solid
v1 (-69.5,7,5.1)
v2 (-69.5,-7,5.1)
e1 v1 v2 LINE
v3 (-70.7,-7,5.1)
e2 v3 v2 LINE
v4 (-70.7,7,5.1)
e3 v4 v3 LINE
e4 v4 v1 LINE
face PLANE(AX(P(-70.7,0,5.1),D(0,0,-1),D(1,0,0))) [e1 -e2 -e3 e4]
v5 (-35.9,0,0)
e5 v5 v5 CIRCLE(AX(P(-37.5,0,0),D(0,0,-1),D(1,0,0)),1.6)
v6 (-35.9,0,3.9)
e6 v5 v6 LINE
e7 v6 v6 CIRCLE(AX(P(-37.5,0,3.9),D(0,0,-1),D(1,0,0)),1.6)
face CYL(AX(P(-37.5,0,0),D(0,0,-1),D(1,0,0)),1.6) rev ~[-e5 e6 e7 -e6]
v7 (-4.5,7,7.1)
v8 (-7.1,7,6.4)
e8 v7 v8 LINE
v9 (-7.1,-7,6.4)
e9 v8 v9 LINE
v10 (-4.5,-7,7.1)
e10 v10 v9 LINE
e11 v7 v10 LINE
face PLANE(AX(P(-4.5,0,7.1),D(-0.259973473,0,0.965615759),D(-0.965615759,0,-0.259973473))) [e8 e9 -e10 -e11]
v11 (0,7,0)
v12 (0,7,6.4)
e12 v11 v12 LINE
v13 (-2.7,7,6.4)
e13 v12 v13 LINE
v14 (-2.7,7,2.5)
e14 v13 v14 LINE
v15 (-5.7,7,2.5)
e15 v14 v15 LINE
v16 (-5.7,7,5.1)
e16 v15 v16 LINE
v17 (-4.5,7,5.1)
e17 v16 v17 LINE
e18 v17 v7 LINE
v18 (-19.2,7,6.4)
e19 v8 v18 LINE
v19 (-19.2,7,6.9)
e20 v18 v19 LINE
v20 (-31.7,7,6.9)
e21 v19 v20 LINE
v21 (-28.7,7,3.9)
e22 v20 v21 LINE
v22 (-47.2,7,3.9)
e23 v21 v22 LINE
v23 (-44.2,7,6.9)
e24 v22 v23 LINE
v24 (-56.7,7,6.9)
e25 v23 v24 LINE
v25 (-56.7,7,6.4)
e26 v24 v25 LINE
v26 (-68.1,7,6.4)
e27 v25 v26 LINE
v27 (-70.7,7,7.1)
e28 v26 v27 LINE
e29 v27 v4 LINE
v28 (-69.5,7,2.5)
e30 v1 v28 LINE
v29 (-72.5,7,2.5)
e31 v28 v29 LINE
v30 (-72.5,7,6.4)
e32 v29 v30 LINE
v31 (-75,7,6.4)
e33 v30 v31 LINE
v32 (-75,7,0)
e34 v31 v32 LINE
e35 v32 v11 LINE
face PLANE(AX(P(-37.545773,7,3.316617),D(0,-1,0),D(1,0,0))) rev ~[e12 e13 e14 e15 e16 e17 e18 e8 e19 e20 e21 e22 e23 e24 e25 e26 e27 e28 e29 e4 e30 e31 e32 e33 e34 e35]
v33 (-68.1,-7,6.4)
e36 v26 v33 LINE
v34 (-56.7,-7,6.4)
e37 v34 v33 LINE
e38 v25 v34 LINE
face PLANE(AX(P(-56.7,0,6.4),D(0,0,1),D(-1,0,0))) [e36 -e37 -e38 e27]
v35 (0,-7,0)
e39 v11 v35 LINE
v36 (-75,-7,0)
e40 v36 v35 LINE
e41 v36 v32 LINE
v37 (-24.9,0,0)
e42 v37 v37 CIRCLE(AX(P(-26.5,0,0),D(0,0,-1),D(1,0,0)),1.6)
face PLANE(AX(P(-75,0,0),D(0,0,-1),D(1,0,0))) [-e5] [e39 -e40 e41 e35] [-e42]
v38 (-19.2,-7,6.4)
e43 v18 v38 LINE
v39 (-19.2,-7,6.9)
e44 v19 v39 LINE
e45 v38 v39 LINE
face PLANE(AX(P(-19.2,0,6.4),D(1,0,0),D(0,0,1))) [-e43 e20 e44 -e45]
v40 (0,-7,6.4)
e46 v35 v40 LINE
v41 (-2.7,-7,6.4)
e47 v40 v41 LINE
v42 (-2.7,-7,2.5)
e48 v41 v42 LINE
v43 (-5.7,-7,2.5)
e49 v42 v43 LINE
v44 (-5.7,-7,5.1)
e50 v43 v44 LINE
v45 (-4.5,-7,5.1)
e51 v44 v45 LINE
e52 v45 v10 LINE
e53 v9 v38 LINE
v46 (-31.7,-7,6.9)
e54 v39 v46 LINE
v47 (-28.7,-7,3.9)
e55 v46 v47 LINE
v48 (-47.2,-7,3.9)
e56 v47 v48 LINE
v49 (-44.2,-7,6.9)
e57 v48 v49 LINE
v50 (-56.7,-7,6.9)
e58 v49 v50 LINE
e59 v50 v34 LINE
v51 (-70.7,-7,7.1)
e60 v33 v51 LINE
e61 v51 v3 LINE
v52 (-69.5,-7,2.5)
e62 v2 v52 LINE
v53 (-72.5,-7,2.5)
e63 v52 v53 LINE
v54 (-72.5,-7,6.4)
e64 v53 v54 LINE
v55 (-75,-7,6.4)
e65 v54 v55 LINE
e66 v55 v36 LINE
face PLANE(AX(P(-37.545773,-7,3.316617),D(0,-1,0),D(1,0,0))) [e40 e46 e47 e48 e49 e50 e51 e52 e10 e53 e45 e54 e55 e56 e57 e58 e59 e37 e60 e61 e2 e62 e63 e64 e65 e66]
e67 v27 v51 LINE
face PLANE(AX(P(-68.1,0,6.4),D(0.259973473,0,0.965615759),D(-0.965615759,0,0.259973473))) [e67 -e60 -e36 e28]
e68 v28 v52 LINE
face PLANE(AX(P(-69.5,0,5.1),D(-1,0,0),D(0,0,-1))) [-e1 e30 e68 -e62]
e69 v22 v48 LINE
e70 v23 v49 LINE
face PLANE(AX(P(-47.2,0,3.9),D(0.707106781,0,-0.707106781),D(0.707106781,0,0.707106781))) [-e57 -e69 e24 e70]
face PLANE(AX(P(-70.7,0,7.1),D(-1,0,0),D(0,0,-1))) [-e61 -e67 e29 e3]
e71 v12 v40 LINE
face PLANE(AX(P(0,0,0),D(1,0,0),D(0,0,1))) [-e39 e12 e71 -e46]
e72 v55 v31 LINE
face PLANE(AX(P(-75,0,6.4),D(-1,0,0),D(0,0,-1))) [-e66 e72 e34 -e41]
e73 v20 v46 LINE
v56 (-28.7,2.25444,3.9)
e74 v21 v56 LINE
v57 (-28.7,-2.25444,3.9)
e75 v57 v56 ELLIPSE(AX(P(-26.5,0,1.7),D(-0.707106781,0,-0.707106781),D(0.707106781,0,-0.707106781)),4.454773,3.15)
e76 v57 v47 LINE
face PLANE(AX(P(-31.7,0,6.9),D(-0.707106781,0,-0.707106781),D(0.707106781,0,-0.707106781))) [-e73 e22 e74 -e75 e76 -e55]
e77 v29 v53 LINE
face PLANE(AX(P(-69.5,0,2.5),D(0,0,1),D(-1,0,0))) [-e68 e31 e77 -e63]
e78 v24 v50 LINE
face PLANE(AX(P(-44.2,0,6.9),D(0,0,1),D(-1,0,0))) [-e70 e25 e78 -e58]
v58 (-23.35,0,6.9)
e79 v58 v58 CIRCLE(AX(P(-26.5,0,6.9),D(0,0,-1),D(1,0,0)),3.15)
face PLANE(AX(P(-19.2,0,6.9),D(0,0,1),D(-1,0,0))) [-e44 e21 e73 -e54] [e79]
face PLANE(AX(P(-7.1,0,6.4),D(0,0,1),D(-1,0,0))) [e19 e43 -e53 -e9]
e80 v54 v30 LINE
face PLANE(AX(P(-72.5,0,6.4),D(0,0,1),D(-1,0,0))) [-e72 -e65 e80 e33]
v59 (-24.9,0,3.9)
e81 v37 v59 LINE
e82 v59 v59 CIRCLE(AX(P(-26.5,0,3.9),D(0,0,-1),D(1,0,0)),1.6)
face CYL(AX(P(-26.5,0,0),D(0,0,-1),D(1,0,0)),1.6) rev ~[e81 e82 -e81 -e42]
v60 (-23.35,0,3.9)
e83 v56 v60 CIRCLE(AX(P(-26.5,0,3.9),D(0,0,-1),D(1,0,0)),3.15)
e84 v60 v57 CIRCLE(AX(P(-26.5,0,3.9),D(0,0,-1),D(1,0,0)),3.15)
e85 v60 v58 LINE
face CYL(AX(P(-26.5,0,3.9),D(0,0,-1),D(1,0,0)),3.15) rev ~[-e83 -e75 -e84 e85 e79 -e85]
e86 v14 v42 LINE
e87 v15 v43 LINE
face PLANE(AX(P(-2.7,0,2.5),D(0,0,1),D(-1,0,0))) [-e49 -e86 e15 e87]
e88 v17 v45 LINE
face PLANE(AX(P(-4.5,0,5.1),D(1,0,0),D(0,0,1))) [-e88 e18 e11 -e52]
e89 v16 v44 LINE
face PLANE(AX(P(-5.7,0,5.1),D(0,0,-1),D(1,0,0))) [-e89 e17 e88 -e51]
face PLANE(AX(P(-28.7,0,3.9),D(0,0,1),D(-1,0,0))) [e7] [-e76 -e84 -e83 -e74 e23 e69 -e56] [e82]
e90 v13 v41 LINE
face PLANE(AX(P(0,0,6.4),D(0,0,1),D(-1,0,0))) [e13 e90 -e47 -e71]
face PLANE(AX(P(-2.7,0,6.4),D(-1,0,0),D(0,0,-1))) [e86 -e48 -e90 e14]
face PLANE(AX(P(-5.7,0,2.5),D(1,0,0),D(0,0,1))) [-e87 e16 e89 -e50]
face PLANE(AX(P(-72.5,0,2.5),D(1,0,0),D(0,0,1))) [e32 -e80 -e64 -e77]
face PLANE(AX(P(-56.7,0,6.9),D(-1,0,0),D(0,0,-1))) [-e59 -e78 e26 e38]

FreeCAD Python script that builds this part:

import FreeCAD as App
import Part
import Sketcher

V = App.Vector


def add_polygon(sketch, points):
    """Adds a closed chain of lines whose ends are joined by coincident constraints."""
    first, n = sketch.GeometryCount, len(points)
    for a, b in zip(points, points[1:] + points[:1]):
        sketch.addGeometry(Part.LineSegment(App.Vector(*a, 0), App.Vector(*b, 0)), False)
    for i in range(n):
        sketch.addConstraint(Sketcher.Constraint("Coincident", first + i, 2, first + (i + 1) % n, 1))

doc = App.newDocument("Part")
body = doc.addObject("PartDesign::Body", "Body")

sketch1 = doc.addObject("Sketcher::SketchObject", "Sketch")
body.addObject(sketch1)
sketch1.AttachmentSupport = (doc.XZ_Plane, [""])
sketch1.MapMode = "FlatFace"
add_polygon(sketch1, [(-75, 0), (0, 0), (0, 6.4), (-2.7, 6.4), (-2.7, 2.5), (-5.7, 2.5), (-5.7, 5.1), (-4.5, 5.1), (-4.5, 7.1), (-7.1, 6.4), (-19.2, 6.4), (-19.2, 6.9), (-31.7, 6.9), (-28.7, 3.9), (-47.2, 3.9), (-44.2, 6.9), (-56.7, 6.9), (-56.7, 6.4), (-68.1, 6.4), (-70.7, 7.1), (-70.7, 5.1), (-69.5, 5.1), (-69.5, 2.5), (-72.5, 2.5), (-72.5, 6.4), (-75, 6.4)])
sketch1.addConstraint(Sketcher.Constraint("Horizontal", 0))
sketch1.addConstraint(Sketcher.Constraint("Vertical", 1))
sketch1.addConstraint(Sketcher.Constraint("Horizontal", 2))
sketch1.addConstraint(Sketcher.Constraint("Vertical", 3))
sketch1.addConstraint(Sketcher.Constraint("Horizontal", 4))
sketch1.addConstraint(Sketcher.Constraint("Vertical", 5))
sketch1.addConstraint(Sketcher.Constraint("Horizontal", 6))
sketch1.addConstraint(Sketcher.Constraint("Vertical", 7))
sketch1.addConstraint(Sketcher.Constraint("Horizontal", 9))
sketch1.addConstraint(Sketcher.Constraint("Vertical", 10))
sketch1.addConstraint(Sketcher.Constraint("Horizontal", 11))
sketch1.addConstraint(Sketcher.Constraint("Horizontal", 13))
sketch1.addConstraint(Sketcher.Constraint("Horizontal", 15))
sketch1.addConstraint(Sketcher.Constraint("Vertical", 16))
sketch1.addConstraint(Sketcher.Constraint("Horizontal", 17))
sketch1.addConstraint(Sketcher.Constraint("Vertical", 19))
sketch1.addConstraint(Sketcher.Constraint("Horizontal", 20))
sketch1.addConstraint(Sketcher.Constraint("Vertical", 21))
sketch1.addConstraint(Sketcher.Constraint("Horizontal", 22))
sketch1.addConstraint(Sketcher.Constraint("Vertical", 23))
sketch1.addConstraint(Sketcher.Constraint("Horizontal", 24))
sketch1.addConstraint(Sketcher.Constraint("Vertical", 25))
sketch1.addConstraint(Sketcher.Constraint("Coincident", 0, 2, -1, 1))
sketch1.addConstraint(Sketcher.Constraint("Perpendicular", 12, 14))
sketch1.addConstraint(Sketcher.Constraint("Horizontal", 2, 2, 8, 2))
sketch1.addConstraint(Sketcher.Constraint("Horizontal", 11, 2, 14, 2))
sketch1.addConstraint(Sketcher.Constraint("Horizontal", 9, 2, 16, 2))
sketch1.addConstraint(Sketcher.Constraint("Horizontal", 7, 2, 18, 2))
sketch1.addConstraint(Sketcher.Constraint("Horizontal", 6, 2, 19, 2))
sketch1.addConstraint(Sketcher.Constraint("Horizontal", 4, 2, 21, 2))
sketch1.addConstraint(Sketcher.Constraint("Horizontal", 17, 2, 23, 2))
sketch1.addConstraint(Sketcher.Constraint("Equal", 11, 15))
sketch1.addConstraint(Sketcher.Constraint("Equal", 6, 20))
sketch1.addConstraint(Sketcher.Constraint("Equal", 4, 22))
sketch1.addConstraint(Sketcher.Constraint("Equal", 12, 14))
sketch1.addConstraint(Sketcher.Constraint("Equal", 8, 18))
sketch1.addConstraint(Sketcher.Constraint("DistanceX", 0, 1, 0, 2, 75.0))
sketch1.addConstraint(Sketcher.Constraint("DistanceX", 4, 2, 4, 1, 3.0))
sketch1.addConstraint(Sketcher.Constraint("DistanceY", 7, 1, 7, 2, 2.0))
sketch1.addConstraint(Sketcher.Constraint("DistanceX", 2, 2, 2, 1, 2.7))
sketch1.addConstraint(Sketcher.Constraint("DistanceX", 6, 1, 6, 2, 1.2))
sketch1.addConstraint(Sketcher.Constraint("DistanceX", 9, 2, 9, 1, 12.1))
sketch1.addConstraint(Sketcher.Constraint("DistanceX", 11, 2, 11, 1, 12.5))
sketch1.addConstraint(Sketcher.Constraint("DistanceX", 13, 2, 13, 1, 18.5))
sketch1.addConstraint(Sketcher.Constraint("DistanceX", 17, 2, 17, 1, 11.4))
sketch1.addConstraint(Sketcher.Constraint("DistanceX", 24, 2, 24, 1, 2.5))
sketch1.addConstraint(Sketcher.Constraint("DistanceY", 1, 1, 1, 2, 6.4))
sketch1.addConstraint(Sketcher.Constraint("DistanceY", 3, 2, 3, 1, 3.9))
sketch1.addConstraint(Sketcher.Constraint("DistanceY", 5, 1, 5, 2, 2.6))
sketch1.addConstraint(Sketcher.Constraint("DistanceY", 10, 1, 10, 2, 0.5))
sketch1.addConstraint(Sketcher.Constraint("DistanceX", 11, 2, 5, 2, 26.0))
pad1 = doc.addObject("PartDesign::Pad", "Pad")
body.addObject(pad1)
pad1.Profile = sketch1
pad1.Length = 14
pad1.Midplane = True

sketch2 = doc.addObject("Sketcher::SketchObject", "Sketch001")
body.addObject(sketch2)
sketch2.AttachmentSupport = (doc.XY_Plane, [""])
sketch2.MapMode = "FlatFace"
sketch2.addGeometry(Part.Circle(V(-37.5, 0, 0), V(0, 0, 1), 1.6), False)
sketch2.addGeometry(Part.Circle(V(-26.5, 0, 0), V(0, 0, 1), 1.6), False)
sketch2.addConstraint(Sketcher.Constraint("Equal", 0, 1))
sketch2.addConstraint(Sketcher.Constraint("PointOnObject", 0, 3, -1))
sketch2.addConstraint(Sketcher.Constraint("PointOnObject", 1, 3, -1))
sketch2.addConstraint(Sketcher.Constraint("Diameter", 0, 3.2))
sketch2.addConstraint(Sketcher.Constraint("DistanceX", 0, 3, 1, 3, 11.0))
sketch2.addConstraint(Sketcher.Constraint("DistanceX", 0, 3, -1, 1, 37.5))
pocket1 = doc.addObject("PartDesign::Pocket", "Pocket")
body.addObject(pocket1)
pocket1.Profile = sketch2
pocket1.Length = 25
pocket1.Reversed = True

sketch3 = doc.addObject("Sketcher::SketchObject", "Sketch002")
body.addObject(sketch3)
sketch3.AttachmentSupport = (doc.XY_Plane, [""])
sketch3.MapMode = "FlatFace"
sketch3.AttachmentOffset = App.Placement(V(0, 0, 3.9), App.Rotation())
sketch3.addGeometry(Part.Circle(V(-26.5, 0, 0), V(0, 0, 1), 3.15), False)
sketch3.addGeometry(Part.Circle(V(-26.5, 0, 0), V(0, 0, 1), 1.6), False)
sketch3.addConstraint(Sketcher.Constraint("Coincident", 1, 3, 0, 3))
sketch3.addConstraint(Sketcher.Constraint("PointOnObject", 0, 3, -1))
sketch3.addConstraint(Sketcher.Constraint("Diameter", 0, 6.3))
sketch3.addConstraint(Sketcher.Constraint("Diameter", 1, 3.2))
sketch3.addConstraint(Sketcher.Constraint("DistanceX", 0, 3, -1, 1, 26.5))
pocket2 = doc.addObject("PartDesign::Pocket", "Pocket001")
body.addObject(pocket2)
pocket2.Profile = sketch3
pocket2.Length = 21.1
pocket2.Reversed = True

doc.recompute()
